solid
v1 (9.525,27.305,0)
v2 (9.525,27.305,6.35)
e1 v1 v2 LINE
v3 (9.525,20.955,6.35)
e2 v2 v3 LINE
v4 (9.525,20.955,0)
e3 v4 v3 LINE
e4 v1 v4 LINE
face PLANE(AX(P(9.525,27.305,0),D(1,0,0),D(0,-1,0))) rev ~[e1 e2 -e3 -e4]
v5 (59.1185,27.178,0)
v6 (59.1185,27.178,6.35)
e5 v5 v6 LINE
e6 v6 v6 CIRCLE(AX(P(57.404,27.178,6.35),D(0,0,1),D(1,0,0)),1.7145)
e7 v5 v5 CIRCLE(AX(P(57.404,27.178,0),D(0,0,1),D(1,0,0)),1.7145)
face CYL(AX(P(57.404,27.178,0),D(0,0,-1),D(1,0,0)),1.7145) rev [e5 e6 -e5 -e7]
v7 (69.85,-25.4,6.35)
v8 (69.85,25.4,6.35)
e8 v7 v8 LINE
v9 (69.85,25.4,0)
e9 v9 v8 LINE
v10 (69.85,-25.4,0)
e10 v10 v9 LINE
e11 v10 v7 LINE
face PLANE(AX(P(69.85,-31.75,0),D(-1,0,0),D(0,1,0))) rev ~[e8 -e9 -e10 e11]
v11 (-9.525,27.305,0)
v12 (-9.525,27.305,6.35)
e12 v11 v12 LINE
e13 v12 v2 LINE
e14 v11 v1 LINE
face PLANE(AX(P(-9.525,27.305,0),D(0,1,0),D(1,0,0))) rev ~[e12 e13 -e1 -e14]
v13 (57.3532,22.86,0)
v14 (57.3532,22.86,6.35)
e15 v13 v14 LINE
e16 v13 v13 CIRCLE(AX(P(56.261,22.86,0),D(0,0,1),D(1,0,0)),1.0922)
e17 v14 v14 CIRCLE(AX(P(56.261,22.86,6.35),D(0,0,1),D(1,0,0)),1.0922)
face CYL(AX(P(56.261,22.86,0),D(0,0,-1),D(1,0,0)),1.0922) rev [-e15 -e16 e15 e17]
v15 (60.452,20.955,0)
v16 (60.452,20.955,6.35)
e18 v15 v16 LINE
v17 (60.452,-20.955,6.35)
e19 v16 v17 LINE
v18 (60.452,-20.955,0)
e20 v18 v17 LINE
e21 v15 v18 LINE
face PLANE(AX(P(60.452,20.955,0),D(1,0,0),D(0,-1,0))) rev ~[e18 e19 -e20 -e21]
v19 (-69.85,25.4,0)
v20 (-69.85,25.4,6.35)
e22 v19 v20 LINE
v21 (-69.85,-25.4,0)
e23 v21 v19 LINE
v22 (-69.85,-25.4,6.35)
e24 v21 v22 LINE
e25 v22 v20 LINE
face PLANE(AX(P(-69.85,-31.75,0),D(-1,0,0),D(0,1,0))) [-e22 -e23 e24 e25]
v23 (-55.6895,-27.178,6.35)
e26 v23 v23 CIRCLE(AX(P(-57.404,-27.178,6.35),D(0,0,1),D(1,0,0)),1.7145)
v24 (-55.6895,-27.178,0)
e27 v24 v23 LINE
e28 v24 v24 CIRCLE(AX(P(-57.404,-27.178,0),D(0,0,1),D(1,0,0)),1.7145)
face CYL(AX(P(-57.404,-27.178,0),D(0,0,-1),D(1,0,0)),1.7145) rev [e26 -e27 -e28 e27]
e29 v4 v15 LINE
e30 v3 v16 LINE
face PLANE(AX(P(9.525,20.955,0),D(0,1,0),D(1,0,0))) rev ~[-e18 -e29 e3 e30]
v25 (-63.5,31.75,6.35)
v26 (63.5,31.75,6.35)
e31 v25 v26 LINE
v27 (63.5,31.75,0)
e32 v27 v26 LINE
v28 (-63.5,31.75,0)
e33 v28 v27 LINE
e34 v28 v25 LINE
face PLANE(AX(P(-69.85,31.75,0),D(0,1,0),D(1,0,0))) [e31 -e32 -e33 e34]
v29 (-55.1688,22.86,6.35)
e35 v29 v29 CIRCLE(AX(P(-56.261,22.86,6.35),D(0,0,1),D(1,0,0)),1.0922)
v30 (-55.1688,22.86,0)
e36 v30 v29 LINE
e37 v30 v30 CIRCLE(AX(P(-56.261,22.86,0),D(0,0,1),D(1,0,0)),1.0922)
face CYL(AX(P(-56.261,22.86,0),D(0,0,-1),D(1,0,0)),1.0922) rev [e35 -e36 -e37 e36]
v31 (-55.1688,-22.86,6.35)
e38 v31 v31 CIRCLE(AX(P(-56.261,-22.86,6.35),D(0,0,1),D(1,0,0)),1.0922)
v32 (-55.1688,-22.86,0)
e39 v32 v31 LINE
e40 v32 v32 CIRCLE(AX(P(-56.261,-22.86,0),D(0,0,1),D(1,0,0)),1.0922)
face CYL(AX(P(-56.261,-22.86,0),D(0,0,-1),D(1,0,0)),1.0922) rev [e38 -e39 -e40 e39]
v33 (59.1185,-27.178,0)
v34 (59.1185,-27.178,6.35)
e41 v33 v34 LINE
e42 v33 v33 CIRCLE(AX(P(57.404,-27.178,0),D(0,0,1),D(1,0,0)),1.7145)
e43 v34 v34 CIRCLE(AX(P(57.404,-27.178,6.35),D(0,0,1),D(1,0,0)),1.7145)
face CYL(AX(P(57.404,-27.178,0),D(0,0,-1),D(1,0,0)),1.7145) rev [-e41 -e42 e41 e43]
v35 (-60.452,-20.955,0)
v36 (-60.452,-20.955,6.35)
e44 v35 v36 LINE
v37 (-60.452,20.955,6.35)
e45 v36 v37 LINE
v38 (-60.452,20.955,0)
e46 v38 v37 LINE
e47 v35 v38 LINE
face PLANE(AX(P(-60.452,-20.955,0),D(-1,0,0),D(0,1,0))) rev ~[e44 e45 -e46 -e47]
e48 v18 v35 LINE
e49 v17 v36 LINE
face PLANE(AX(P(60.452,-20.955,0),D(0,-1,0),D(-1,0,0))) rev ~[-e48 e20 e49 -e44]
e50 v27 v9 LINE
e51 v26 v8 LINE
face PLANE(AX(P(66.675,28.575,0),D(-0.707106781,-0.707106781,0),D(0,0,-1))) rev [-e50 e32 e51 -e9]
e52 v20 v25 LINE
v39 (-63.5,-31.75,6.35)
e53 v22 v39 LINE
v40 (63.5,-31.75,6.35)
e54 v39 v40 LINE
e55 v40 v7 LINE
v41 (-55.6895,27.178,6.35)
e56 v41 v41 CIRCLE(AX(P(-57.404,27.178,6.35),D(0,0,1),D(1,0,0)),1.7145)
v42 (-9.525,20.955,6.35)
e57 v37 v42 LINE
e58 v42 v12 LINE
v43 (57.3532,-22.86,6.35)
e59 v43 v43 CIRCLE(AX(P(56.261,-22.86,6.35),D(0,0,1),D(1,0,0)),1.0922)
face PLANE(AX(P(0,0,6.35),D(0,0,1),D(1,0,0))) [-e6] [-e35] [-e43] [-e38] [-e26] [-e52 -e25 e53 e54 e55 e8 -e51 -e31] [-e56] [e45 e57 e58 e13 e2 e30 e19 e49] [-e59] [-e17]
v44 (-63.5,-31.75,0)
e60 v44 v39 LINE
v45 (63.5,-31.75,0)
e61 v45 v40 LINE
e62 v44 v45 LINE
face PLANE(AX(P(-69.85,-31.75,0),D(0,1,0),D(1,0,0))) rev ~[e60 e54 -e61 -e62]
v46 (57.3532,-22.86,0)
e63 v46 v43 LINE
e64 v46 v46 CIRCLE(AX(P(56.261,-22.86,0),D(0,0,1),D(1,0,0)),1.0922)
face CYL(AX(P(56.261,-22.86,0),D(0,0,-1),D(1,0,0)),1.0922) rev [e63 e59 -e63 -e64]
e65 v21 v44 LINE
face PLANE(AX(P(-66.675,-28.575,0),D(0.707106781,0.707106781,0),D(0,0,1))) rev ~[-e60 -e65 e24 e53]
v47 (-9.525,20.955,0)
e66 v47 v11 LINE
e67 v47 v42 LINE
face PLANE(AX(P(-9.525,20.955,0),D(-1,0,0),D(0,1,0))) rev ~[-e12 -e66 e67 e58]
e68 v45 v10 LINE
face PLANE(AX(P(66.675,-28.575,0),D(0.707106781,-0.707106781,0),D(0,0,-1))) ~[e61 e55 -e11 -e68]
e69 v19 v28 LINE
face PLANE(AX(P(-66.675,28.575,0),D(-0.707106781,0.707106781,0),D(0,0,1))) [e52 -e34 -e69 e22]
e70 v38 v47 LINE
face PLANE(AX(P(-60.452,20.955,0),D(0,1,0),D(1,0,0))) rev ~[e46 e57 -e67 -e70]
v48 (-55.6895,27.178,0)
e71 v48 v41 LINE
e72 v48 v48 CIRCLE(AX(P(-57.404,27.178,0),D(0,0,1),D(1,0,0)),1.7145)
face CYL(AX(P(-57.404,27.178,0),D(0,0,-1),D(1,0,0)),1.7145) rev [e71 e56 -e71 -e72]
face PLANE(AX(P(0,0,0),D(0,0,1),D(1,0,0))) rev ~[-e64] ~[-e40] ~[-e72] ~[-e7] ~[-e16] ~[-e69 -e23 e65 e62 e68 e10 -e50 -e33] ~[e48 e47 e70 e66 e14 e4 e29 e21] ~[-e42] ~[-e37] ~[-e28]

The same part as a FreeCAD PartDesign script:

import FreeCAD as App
import Part
import Sketcher
Q = App.Units.Quantity


def edges_at(feature, points):
    """Names of the edges that pass closest to the given points."""
    edges = feature.Shape.Edges
    near = lambda p: min(range(len(edges)), key=lambda i: edges[i].distToShape(Part.Vertex(*p))[0])
    return sorted({f"Edge{near(p) + 1}" for p in points})

doc = App.newDocument("Part")
params = doc.addObject("Spreadsheet::Sheet", "Params")
for row, (alias, value) in enumerate([
    ("sketch1_diameter", "0.135 in"),
    ("sketch1_diameter2", "0.086 in"),
    ("sketch1_width", "5.5 in"),
    ("sketch1_height", "2.5 in"),
    ("sketch1_width2", "4.76 in"),
    ("pad1_length", "0.25 in"),
    ("chamfer_size", "0.25 in"),
], start=1):
    params.set(f"A{row}", alias)
    params.set(f"B{row}", "=" + value)
    params.setAlias(f"B{row}", alias)

body = doc.addObject("PartDesign::Body", "Body")

sketch1 = body.newObject("Sketcher::SketchObject", "Sketch")
sketch1.AttachmentSupport = (doc.getObject("XY_Plane"), [""])
sketch1.MapMode = "FlatFace"
sketch1.addGeometry(Part.LineSegment(App.Vector(-69.8, 31.8, 0), App.Vector(-69.8, -31.8, 0)), False)
sketch1.addGeometry(Part.LineSegment(App.Vector(-69.8, -31.8, 0), App.Vector(69.8, -31.8, 0)), False)
sketch1.addGeometry(Part.LineSegment(App.Vector(69.8, -31.8, 0), App.Vector(69.8, 31.8, 0)), False)
sketch1.addGeometry(Part.LineSegment(App.Vector(69.8, 31.8, 0), App.Vector(-69.8, 31.8, 0)), False)
sketch1.addGeometry(Part.Circle(App.Vector(-57.4, -27.2, 0), App.Vector(0, 0, 1), 1.7), False)
sketch1.addGeometry(Part.Circle(App.Vector(-56.3, -22.9, 0), App.Vector(0, 0, 1), 1.1), False)
sketch1.addGeometry(Part.Circle(App.Vector(57.4, -27.2, 0), App.Vector(0, 0, 1), 1.7), False)
sketch1.addGeometry(Part.Circle(App.Vector(56.3, -22.9, 0), App.Vector(0, 0, 1), 1.1), False)
sketch1.addGeometry(Part.Circle(App.Vector(-56.3, 22.9, 0), App.Vector(0, 0, 1), 1.1), False)
sketch1.addGeometry(Part.Circle(App.Vector(-57.4, 27.2, 0), App.Vector(0, 0, 1), 1.7), False)
sketch1.addGeometry(Part.LineSegment(App.Vector(9.5, 27.3, 0), App.Vector(9.5, 21, 0)), False)
sketch1.addGeometry(Part.LineSegment(App.Vector(9.5, 21, 0), App.Vector(60.5, 21, 0)), False)
sketch1.addGeometry(Part.LineSegment(App.Vector(60.5, 21, 0), App.Vector(60.5, -21, 0)), False)
sketch1.addGeometry(Part.LineSegment(App.Vector(60.5, -21, 0), App.Vector(-60.5, -21, 0)), False)
sketch1.addGeometry(Part.LineSegment(App.Vector(-60.5, -21, 0), App.Vector(-60.5, 21, 0)), False)
sketch1.addGeometry(Part.LineSegment(App.Vector(-60.5, 21, 0), App.Vector(-9.5, 21, 0)), False)
sketch1.addGeometry(Part.LineSegment(App.Vector(-9.5, 21, 0), App.Vector(-9.5, 27.3, 0)), False)
sketch1.addGeometry(Part.LineSegment(App.Vector(-9.5, 27.3, 0), App.Vector(9.5, 27.3, 0)), False)
sketch1.addGeometry(Part.Circle(App.Vector(56.3, 22.9, 0), App.Vector(0, 0, 1), 1.1), False)
sketch1.addGeometry(Part.Circle(App.Vector(57.4, 27.2, 0), App.Vector(0, 0, 1), 1.7), False)
sketch1.addConstraint(Sketcher.Constraint("Coincident", 0, 2, 1, 1))
sketch1.addConstraint(Sketcher.Constraint("Coincident", 1, 2, 2, 1))
sketch1.addConstraint(Sketcher.Constraint("Coincident", 2, 2, 3, 1))
sketch1.addConstraint(Sketcher.Constraint("Coincident", 3, 2, 0, 1))
sketch1.addConstraint(Sketcher.Constraint("Coincident", 10, 2, 11, 1))
sketch1.addConstraint(Sketcher.Constraint("Coincident", 11, 2, 12, 1))
sketch1.addConstraint(Sketcher.Constraint("Coincident", 12, 2, 13, 1))
sketch1.addConstraint(Sketcher.Constraint("Coincident", 13, 2, 14, 1))
sketch1.addConstraint(Sketcher.Constraint("Coincident", 14, 2, 15, 1))
sketch1.addConstraint(Sketcher.Constraint("Coincident", 15, 2, 16, 1))
sketch1.addConstraint(Sketcher.Constraint("Coincident", 16, 2, 17, 1))
sketch1.addConstraint(Sketcher.Constraint("Coincident", 17, 2, 10, 1))
sketch1.addConstraint(Sketcher.Constraint("Vertical", 0))
sketch1.addConstraint(Sketcher.Constraint("Horizontal", 1))
sketch1.addConstraint(Sketcher.Constraint("Vertical", 2))
sketch1.addConstraint(Sketcher.Constraint("Horizontal", 3))
sketch1.addConstraint(Sketcher.Constraint("Vertical", 10))
sketch1.addConstraint(Sketcher.Constraint("Horizontal", 11))
sketch1.addConstraint(Sketcher.Constraint("Vertical", 12))
sketch1.addConstraint(Sketcher.Constraint("Horizontal", 13))
sketch1.addConstraint(Sketcher.Constraint("Vertical", 14))
sketch1.addConstraint(Sketcher.Constraint("Horizontal", 15))
sketch1.addConstraint(Sketcher.Constraint("Vertical", 16))
sketch1.addConstraint(Sketcher.Constraint("Horizontal", 17))
sketch1.addConstraint(Sketcher.Constraint("Equal", 4, 6))
sketch1.addConstraint(Sketcher.Constraint("Equal", 5, 7))
sketch1.addConstraint(Sketcher.Constraint("Equal", 7, 8))
sketch1.addConstraint(Sketcher.Constraint("Equal", 6, 9))
sketch1.addConstraint(Sketcher.Constraint("Equal", 8, 18))
sketch1.addConstraint(Sketcher.Constraint("Equal", 9, 19))
sketch1.addConstraint(Sketcher.Constraint("Symmetric", 7, 3, 8, 3, -1, 1))
sketch1.addConstraint(Sketcher.Constraint("Symmetric", 6, 3, 9, 3, -1, 1))
sketch1.addConstraint(Sketcher.Constraint("Symmetric", 5, 3, 18, 3, -1, 1))
sketch1.addConstraint(Sketcher.Constraint("Symmetric", 4, 3, 19, 3, -1, 1))
sketch1.addConstraint(Sketcher.Constraint("Symmetric", 0, 2, 2, 2, -1, 1))
sketch1.addConstraint(Sketcher.Constraint("Symmetric", 11, 2, 13, 2, -1, 1))
sketch1.addConstraint(Sketcher.Constraint("Symmetric", 4, 3, 6, 3, -2))
sketch1.addConstraint(Sketcher.Constraint("Symmetric", 5, 3, 7, 3, -2))
sketch1.addConstraint(Sketcher.Constraint("Symmetric", 10, 2, 15, 2, -2))
sketch1.addConstraint(Sketcher.Constraint("Diameter", 4, Q("0.135 in")))
sketch1.addConstraint(Sketcher.Constraint("Diameter", 5, Q("0.086 in")))
sketch1.addConstraint(Sketcher.Constraint("DistanceX", 1, 1, 1, 2, Q("5.5 in")))
sketch1.addConstraint(Sketcher.Constraint("DistanceY", 0, 2, 0, 1, Q("2.5 in")))
sketch1.addConstraint(Sketcher.Constraint("DistanceX", 13, 2, 13, 1, Q("4.76 in")))
sketch1.addConstraint(Sketcher.Constraint("DistanceX", 17, 1, 17, 2, Q("0.75 in")))
sketch1.addConstraint(Sketcher.Constraint("DistanceY", 10, 2, 10, 1, Q("0.25 in")))
sketch1.addConstraint(Sketcher.Constraint("DistanceY", 12, 2, 12, 1, Q("1.65 in")))
sketch1.addConstraint(Sketcher.Constraint("DistanceY", 5, 3, -1, 1, Q("0.9 in")))
sketch1.addConstraint(Sketcher.Constraint("DistanceX", 4, 3, -1, 1, Q("2.26 in")))
sketch1.addConstraint(Sketcher.Constraint("DistanceY", 4, 3, -1, 1, Q("1.07 in")))
sketch1.addConstraint(Sketcher.Constraint("DistanceX", 5, 3, 7, 3, Q("4.43 in")))
sketch1.setExpression("Constraints[39]", "Params.sketch1_diameter")
sketch1.setExpression("Constraints[40]", "Params.sketch1_diameter2")
sketch1.setExpression("Constraints[41]", "Params.sketch1_width")
sketch1.setExpression("Constraints[42]", "Params.sketch1_height")
sketch1.setExpression("Constraints[43]", "Params.sketch1_width2")
pad1 = body.newObject("PartDesign::Pad", "Pad")
pad1.Profile = sketch1
pad1.setExpression("Length", "Params.pad1_length")
doc.recompute()

chamfer = body.newObject("PartDesign::Chamfer", "Chamfer")
chamfer.Base = (pad1, edges_at(pad1, [
    (-69.85, -31.75, 3.175),
    (69.85, 31.75, 3.175),
    (-69.85, 31.75, 3.175),
    (69.85, -31.75, 3.175),
]))
chamfer.setExpression("Size", "Params.chamfer_size")

doc.recompute()
